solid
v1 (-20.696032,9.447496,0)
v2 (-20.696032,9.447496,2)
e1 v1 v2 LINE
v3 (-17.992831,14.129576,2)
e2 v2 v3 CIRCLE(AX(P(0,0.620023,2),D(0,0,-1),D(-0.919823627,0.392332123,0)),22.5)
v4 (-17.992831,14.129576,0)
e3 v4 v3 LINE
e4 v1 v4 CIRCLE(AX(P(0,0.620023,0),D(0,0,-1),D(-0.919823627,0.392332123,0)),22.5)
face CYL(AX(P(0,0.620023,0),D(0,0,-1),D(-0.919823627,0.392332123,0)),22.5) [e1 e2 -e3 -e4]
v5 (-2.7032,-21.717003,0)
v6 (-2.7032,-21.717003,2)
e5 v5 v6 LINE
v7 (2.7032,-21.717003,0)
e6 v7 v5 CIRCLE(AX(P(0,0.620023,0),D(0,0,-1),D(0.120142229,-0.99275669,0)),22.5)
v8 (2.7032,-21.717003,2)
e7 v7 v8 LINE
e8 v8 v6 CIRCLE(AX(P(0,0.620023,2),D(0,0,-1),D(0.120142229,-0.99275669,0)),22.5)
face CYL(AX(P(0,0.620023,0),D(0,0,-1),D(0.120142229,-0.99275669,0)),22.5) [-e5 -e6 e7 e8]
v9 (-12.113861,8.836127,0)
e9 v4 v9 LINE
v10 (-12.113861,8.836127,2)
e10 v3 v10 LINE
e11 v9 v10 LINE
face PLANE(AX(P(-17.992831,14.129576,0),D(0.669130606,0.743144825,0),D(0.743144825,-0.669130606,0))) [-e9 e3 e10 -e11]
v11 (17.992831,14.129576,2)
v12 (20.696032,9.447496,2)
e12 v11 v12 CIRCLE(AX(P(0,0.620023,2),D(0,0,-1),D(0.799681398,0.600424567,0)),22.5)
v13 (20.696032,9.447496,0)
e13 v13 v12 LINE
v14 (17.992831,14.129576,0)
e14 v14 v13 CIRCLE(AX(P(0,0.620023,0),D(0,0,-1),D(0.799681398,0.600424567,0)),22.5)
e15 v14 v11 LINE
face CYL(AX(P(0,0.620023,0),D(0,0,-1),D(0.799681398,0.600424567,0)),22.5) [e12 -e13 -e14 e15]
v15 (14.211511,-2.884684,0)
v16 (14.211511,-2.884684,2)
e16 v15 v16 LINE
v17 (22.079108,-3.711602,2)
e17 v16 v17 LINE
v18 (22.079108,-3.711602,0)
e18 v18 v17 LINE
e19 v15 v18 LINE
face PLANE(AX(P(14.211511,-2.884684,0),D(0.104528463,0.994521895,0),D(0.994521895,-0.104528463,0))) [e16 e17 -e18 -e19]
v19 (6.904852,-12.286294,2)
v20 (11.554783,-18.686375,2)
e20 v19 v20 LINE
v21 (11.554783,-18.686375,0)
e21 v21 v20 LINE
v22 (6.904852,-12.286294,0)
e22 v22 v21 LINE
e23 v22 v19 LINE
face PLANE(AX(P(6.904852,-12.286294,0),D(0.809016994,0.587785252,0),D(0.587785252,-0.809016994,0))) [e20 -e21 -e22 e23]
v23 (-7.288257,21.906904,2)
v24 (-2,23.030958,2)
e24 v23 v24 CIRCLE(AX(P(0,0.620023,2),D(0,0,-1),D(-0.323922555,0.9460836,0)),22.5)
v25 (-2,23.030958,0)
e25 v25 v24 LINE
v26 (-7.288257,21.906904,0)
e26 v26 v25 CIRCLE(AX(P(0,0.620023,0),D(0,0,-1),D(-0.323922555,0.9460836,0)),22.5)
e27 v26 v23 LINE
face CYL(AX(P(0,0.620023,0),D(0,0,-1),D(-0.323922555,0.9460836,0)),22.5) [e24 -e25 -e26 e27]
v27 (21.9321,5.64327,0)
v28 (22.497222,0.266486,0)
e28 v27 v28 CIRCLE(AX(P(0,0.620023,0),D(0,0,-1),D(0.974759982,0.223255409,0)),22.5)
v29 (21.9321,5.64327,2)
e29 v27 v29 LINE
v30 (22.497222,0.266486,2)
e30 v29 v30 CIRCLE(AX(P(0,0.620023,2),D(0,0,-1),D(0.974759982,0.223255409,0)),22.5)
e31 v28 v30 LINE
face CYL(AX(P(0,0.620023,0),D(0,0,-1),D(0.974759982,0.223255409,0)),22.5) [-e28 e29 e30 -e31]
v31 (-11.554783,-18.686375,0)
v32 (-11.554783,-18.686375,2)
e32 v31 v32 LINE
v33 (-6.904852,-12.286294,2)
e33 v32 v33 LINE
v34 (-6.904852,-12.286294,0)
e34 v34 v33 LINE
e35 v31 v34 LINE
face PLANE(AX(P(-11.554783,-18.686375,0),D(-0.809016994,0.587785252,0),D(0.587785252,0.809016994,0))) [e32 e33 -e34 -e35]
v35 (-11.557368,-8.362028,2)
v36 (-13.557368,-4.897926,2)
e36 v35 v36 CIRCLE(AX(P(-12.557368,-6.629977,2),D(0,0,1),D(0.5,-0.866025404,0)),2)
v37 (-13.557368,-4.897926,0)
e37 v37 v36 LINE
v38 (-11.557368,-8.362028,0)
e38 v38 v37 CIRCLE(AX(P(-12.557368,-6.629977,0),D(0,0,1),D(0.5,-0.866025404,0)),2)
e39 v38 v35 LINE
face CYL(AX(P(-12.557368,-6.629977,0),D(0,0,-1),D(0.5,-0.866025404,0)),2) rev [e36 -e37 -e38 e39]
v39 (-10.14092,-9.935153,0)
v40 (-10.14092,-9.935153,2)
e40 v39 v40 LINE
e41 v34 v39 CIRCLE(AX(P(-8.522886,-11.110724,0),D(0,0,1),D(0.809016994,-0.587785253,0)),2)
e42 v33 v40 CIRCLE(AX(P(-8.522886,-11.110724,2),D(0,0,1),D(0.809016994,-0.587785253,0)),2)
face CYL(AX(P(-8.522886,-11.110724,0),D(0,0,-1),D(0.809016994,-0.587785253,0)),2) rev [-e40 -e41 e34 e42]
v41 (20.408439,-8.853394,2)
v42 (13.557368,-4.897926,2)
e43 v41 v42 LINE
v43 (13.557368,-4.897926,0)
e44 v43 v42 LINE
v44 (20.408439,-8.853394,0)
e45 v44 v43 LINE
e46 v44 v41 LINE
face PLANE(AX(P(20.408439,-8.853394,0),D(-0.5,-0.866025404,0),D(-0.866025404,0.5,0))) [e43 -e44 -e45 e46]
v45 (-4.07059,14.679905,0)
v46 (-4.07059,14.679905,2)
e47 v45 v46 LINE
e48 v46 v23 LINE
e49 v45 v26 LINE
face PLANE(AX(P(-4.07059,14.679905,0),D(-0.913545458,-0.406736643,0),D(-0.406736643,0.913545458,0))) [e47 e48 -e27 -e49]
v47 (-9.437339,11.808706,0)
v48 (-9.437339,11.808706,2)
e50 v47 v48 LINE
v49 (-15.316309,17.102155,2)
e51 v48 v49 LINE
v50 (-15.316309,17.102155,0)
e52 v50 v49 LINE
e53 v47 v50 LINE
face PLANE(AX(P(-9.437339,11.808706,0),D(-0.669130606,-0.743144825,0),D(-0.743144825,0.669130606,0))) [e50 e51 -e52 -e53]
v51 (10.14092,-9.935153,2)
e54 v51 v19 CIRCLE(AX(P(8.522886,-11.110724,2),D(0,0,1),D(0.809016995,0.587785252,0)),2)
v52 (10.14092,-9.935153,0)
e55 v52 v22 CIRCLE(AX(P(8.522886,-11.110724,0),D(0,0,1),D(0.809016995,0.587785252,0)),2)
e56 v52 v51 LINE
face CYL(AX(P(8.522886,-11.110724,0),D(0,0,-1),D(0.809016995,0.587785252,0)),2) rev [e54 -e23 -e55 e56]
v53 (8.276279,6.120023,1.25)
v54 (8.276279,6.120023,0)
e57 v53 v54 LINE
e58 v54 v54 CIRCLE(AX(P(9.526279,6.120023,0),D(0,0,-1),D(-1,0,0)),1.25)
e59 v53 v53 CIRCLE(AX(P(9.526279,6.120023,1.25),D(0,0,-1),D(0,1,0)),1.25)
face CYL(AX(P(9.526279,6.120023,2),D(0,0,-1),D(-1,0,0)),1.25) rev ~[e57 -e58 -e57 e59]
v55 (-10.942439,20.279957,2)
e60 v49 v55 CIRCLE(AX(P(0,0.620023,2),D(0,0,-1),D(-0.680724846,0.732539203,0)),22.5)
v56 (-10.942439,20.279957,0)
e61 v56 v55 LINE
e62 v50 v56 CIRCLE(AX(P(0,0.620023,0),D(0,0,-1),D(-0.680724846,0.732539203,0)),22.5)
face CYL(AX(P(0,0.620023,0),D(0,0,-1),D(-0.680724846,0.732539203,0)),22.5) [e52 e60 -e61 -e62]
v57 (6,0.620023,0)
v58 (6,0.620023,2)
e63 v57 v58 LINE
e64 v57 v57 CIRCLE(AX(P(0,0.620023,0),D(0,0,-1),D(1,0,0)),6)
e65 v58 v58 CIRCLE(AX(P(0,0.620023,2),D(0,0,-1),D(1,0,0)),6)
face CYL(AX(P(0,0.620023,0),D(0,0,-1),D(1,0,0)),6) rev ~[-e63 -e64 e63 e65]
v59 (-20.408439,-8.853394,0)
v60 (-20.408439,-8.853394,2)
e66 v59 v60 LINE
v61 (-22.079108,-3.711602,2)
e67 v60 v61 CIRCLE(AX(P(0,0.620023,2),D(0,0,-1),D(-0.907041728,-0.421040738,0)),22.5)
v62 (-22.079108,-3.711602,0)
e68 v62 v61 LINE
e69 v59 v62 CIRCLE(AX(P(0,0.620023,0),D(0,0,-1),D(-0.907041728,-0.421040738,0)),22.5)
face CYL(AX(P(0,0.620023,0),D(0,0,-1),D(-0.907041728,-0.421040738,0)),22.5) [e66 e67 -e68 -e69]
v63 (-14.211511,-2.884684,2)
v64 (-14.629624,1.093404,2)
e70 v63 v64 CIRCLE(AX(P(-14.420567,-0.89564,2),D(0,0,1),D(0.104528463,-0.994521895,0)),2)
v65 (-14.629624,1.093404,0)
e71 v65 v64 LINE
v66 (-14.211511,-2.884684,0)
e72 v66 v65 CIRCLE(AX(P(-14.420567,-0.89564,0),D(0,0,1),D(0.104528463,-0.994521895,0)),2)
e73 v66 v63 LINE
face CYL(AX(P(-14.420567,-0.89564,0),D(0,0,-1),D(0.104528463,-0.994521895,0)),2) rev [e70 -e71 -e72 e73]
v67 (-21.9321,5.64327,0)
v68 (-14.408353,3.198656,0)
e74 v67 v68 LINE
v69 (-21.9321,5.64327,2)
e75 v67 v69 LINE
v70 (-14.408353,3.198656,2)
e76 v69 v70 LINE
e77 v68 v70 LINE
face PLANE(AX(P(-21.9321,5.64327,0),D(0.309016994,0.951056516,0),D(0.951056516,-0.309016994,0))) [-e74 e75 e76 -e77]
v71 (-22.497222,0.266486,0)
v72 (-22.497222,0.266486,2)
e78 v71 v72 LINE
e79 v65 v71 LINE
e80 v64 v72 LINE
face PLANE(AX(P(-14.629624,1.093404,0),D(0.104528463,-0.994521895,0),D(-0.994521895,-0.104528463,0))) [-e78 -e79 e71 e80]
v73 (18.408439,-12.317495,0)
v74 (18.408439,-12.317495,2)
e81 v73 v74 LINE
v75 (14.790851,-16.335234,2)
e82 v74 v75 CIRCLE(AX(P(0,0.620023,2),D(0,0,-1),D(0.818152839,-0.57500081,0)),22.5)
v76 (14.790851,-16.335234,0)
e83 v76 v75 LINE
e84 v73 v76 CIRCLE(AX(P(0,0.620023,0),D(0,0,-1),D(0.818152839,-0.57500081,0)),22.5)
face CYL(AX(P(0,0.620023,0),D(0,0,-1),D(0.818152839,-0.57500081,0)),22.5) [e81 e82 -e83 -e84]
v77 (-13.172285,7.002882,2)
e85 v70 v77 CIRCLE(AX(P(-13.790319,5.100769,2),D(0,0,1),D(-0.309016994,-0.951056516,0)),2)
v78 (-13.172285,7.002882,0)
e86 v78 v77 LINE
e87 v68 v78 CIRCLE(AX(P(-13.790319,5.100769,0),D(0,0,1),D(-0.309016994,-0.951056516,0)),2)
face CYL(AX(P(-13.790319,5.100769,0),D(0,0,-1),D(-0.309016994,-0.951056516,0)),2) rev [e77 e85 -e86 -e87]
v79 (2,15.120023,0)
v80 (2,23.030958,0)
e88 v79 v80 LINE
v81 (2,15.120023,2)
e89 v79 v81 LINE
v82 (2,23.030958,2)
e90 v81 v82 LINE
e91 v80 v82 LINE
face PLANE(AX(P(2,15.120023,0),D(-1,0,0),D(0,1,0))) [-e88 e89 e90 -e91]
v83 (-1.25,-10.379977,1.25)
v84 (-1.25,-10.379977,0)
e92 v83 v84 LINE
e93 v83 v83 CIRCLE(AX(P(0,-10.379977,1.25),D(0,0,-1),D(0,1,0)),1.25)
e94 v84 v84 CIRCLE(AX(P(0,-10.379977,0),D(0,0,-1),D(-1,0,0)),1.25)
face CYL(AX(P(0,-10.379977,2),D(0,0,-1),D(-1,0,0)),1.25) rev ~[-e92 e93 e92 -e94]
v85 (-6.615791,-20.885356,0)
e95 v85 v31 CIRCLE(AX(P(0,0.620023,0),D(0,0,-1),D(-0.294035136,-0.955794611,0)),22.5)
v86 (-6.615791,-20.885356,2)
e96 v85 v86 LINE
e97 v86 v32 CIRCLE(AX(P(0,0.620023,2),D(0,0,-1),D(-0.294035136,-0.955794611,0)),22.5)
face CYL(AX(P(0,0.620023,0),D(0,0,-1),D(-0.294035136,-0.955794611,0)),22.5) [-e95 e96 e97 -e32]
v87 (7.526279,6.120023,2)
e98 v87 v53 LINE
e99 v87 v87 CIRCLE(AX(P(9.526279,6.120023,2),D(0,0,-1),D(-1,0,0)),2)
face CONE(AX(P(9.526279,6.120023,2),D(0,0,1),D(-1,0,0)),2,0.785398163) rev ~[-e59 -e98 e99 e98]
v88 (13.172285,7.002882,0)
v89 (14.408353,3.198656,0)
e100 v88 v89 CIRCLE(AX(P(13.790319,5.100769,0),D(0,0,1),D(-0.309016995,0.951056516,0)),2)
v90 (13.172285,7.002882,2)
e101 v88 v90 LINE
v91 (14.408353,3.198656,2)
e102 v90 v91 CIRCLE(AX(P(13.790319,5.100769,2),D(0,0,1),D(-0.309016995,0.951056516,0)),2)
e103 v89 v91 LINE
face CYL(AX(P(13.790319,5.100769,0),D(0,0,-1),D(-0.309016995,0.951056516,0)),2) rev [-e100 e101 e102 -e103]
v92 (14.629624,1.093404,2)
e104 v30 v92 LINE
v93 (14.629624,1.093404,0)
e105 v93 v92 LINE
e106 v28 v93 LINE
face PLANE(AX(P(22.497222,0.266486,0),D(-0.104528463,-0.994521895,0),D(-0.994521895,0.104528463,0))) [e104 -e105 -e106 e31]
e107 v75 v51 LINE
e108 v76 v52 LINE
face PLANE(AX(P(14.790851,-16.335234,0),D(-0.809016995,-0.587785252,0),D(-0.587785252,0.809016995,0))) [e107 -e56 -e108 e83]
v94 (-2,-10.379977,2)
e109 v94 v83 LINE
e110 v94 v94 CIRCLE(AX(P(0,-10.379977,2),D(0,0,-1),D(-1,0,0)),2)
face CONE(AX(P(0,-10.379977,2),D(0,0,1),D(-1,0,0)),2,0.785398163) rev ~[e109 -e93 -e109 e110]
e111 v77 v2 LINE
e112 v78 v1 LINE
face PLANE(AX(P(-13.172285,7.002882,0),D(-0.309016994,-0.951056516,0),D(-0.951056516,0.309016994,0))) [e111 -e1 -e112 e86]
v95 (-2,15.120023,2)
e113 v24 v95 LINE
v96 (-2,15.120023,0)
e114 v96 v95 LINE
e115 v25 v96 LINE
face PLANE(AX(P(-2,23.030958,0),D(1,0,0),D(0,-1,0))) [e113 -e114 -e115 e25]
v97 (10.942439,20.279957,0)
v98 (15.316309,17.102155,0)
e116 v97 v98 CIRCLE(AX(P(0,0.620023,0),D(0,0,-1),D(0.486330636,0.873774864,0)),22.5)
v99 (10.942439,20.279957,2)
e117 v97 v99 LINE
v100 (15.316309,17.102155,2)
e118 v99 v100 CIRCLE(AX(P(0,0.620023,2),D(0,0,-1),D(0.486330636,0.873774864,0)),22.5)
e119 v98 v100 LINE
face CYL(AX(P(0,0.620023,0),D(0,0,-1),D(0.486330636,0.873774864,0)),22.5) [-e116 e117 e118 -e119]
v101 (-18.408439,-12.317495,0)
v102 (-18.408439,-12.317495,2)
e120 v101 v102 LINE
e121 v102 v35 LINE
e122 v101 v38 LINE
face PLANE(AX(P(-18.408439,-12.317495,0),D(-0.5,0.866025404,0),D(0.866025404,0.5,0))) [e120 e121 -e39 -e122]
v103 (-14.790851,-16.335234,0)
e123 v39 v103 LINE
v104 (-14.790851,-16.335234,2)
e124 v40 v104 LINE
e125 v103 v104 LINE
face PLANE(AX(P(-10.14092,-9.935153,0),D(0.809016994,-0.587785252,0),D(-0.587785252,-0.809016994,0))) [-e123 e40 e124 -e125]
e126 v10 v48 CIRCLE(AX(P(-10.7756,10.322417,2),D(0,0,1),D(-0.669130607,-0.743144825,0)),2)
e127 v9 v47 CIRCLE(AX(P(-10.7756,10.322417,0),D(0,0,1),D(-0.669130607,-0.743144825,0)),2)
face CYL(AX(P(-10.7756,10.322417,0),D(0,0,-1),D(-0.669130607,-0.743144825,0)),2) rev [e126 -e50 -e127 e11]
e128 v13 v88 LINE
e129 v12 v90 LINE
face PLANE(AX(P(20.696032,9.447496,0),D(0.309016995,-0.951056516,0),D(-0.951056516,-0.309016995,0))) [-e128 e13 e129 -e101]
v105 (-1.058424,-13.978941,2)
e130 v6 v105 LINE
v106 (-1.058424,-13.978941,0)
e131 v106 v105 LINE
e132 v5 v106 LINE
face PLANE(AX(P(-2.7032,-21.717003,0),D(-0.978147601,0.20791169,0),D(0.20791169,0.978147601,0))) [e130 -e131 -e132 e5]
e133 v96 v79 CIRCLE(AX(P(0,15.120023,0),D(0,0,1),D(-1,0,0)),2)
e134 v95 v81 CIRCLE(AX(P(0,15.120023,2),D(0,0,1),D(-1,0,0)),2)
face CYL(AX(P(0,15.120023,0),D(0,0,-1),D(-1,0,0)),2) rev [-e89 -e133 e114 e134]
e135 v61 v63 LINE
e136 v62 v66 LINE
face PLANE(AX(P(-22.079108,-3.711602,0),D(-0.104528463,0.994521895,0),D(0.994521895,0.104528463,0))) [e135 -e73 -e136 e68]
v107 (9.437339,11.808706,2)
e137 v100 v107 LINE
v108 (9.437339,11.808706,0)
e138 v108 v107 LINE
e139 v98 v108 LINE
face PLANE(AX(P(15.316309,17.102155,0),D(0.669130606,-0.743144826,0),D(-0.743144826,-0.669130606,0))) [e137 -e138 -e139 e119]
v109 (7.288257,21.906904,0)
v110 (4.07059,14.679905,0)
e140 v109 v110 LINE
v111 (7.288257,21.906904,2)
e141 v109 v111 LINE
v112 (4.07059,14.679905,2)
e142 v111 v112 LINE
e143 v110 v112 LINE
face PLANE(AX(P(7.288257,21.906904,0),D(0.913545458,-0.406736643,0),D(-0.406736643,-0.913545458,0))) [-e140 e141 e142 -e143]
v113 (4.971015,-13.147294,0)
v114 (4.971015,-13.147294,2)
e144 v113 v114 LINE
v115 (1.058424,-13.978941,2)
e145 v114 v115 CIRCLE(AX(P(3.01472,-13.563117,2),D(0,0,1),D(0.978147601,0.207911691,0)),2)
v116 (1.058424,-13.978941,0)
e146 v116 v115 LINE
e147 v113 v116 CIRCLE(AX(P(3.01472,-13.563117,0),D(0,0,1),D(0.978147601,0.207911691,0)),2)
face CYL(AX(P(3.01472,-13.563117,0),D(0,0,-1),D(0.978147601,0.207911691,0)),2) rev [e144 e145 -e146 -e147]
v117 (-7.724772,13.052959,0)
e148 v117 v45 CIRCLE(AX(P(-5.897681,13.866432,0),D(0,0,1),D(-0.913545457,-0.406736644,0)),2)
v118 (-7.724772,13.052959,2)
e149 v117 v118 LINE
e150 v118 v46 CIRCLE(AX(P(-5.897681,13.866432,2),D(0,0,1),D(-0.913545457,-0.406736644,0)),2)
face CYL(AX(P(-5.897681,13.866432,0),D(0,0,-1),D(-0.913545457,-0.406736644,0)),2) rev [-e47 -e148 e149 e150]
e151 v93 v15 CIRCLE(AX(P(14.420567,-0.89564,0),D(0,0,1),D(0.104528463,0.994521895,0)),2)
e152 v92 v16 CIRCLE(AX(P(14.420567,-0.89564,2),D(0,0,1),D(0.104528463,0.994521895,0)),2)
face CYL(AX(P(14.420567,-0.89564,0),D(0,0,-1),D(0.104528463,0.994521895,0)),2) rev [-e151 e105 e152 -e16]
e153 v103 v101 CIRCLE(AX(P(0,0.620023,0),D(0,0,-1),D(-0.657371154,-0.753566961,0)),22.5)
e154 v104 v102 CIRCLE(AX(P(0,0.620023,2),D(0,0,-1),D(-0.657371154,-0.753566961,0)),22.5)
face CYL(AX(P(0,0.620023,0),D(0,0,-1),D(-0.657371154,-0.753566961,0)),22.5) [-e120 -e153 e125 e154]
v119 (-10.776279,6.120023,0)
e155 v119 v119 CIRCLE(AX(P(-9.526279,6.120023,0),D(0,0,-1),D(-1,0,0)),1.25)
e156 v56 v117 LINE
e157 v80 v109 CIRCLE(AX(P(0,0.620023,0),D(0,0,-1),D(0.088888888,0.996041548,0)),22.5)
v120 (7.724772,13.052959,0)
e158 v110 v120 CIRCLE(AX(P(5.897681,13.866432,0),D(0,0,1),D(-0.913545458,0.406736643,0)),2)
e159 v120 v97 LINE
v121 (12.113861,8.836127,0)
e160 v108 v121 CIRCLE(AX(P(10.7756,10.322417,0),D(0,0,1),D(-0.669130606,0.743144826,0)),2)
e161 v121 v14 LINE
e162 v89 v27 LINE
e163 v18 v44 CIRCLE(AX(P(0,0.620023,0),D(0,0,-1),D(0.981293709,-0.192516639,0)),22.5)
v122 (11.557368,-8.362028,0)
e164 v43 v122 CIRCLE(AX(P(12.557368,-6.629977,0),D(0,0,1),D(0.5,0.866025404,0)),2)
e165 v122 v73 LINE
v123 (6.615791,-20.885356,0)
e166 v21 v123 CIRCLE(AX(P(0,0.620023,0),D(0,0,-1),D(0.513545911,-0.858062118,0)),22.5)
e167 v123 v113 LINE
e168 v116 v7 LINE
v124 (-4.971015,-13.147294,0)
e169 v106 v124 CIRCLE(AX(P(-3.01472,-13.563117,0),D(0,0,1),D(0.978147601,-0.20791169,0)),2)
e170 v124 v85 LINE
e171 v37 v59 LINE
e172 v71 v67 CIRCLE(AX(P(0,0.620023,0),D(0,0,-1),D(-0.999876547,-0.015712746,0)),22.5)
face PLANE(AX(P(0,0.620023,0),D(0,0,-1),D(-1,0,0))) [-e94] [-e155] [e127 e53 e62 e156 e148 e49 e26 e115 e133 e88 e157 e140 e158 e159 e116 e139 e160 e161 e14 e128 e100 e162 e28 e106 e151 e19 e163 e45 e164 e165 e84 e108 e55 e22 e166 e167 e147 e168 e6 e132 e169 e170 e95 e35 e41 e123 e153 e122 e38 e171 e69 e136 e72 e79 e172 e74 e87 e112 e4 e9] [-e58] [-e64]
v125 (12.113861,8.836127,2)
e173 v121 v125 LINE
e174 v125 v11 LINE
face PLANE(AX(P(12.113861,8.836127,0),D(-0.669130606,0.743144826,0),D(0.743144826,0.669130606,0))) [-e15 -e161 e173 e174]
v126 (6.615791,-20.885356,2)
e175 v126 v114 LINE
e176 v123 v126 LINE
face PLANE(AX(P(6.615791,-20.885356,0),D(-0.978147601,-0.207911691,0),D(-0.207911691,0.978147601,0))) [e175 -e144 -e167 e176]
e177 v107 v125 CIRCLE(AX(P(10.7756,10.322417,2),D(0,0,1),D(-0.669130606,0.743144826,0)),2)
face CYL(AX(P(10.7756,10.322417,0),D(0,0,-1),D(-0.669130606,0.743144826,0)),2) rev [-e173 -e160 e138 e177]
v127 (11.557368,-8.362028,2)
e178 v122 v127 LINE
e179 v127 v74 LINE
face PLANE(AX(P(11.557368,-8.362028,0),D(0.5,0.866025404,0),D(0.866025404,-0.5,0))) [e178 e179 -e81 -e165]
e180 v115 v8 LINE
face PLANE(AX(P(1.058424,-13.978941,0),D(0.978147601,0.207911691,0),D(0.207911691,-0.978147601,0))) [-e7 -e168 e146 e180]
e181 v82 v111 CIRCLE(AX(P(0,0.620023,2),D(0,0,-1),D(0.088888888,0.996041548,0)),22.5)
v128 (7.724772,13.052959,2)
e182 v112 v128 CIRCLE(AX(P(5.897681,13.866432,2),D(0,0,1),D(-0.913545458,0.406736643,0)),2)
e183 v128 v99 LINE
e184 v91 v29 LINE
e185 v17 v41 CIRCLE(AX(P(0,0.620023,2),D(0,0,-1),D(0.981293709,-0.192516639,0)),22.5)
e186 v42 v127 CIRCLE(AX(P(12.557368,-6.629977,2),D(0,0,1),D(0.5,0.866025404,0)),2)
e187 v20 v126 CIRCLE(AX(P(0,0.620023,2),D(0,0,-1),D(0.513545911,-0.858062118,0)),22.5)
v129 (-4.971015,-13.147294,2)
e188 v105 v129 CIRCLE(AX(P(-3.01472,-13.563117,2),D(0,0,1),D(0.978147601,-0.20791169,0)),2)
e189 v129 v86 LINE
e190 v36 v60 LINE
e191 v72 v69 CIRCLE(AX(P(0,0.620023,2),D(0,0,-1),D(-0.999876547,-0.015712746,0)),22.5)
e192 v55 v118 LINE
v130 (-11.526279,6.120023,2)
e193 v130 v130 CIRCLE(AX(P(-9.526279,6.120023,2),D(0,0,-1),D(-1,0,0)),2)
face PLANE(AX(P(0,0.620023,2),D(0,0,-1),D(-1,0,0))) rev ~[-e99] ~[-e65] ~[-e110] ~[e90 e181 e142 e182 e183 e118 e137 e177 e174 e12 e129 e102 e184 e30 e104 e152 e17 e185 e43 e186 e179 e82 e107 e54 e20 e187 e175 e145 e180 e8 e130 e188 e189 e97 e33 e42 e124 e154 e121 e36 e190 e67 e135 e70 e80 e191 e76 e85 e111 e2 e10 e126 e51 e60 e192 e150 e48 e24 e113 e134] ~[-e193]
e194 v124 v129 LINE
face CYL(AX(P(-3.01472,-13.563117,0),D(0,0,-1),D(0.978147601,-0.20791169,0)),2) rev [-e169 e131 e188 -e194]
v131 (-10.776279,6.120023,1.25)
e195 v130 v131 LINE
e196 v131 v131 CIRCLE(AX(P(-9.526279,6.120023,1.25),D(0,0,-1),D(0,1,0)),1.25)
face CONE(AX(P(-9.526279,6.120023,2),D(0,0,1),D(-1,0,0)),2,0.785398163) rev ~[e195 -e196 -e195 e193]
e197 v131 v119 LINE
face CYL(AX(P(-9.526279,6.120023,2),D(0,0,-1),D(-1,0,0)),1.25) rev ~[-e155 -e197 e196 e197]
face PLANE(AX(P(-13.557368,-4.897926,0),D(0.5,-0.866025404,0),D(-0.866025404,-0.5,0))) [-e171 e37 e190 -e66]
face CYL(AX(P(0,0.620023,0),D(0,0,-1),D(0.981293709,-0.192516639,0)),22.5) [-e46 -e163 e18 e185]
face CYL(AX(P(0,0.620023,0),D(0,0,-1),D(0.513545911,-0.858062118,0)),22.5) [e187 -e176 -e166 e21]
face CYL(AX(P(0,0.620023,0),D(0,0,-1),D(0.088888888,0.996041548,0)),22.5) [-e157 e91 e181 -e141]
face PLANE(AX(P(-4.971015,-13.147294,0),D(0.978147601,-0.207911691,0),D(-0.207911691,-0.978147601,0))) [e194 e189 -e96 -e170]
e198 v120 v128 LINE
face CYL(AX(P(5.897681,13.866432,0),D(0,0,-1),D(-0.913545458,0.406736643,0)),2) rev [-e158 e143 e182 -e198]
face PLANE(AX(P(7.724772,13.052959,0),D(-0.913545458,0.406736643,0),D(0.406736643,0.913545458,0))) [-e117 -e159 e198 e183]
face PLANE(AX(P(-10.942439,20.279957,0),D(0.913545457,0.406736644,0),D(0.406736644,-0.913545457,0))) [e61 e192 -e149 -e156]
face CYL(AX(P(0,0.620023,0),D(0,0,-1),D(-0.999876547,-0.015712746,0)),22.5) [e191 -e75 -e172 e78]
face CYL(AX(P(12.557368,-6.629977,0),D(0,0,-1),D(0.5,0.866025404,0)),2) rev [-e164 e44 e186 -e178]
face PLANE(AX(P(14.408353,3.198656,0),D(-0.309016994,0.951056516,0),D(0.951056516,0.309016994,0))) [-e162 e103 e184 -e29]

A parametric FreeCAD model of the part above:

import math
import FreeCAD as App
import Part
import Sketcher
Q = App.Units.Quantity

doc = App.newDocument("Part")
body = doc.addObject("PartDesign::Body", "Body")

# Sketch on XY plane
sketch1 = doc.addObject("Sketcher::SketchObject", "Sketch")
body.addObject(sketch1)
sketch1.AttachmentSupport = (doc.XY_Plane, [""])
sketch1.MapMode = "FlatFace"
sketch1.addGeometry(Part.LineSegment(App.Vector(15.3, 17.1, 0), App.Vector(9.4, 11.8, 0)), False)
sketch1.addGeometry(Part.ArcOfCircle(Part.Circle(App.Vector(10.8, 10.3, 0), App.Vector(0, 0, 1), 2), math.radians(132), math.radians(312)), False)
sketch1.addGeometry(Part.LineSegment(App.Vector(12.1, 8.8, 0), App.Vector(18, 14.1, 0)), False)
sketch1.addGeometry(Part.ArcOfCircle(Part.Circle(App.Vector(0, 0.6, 0), App.Vector(0, 0, 1), 22.5), math.radians(23.1), math.radians(36.9)), False)
sketch1.addGeometry(Part.LineSegment(App.Vector(20.7, 9.4, 0), App.Vector(13.2, 7, 0)), False)
sketch1.addGeometry(Part.ArcOfCircle(Part.Circle(App.Vector(13.8, 5.1, 0), App.Vector(0, 0, 1), 2), math.radians(108), math.radians(288)), False)
sketch1.addGeometry(Part.LineSegment(App.Vector(14.4, 3.2, 0), App.Vector(21.9, 5.6, 0)), False)
sketch1.addGeometry(Part.ArcOfCircle(Part.Circle(App.Vector(0, 0.6, 0), App.Vector(0, 0, 1), 22.5), math.radians(-0.9), math.radians(12.9)), False)
sketch1.addGeometry(Part.LineSegment(App.Vector(22.5, 0.3, 0), App.Vector(14.6, 1.1, 0)), False)
sketch1.addGeometry(Part.ArcOfCircle(Part.Circle(App.Vector(14.4, -0.9, 0), App.Vector(0, 0, 1), 2), math.radians(84), math.radians(264)), False)
sketch1.addGeometry(Part.LineSegment(App.Vector(14.2, -2.9, 0), App.Vector(22.1, -3.7, 0)), False)
sketch1.addGeometry(Part.ArcOfCircle(Part.Circle(App.Vector(0, 0.6, 0), App.Vector(0, 0, 1), 22.5), math.radians(-24.9), math.radians(-11.1)), False)
sketch1.addGeometry(Part.LineSegment(App.Vector(20.4, -8.9, 0), App.Vector(13.6, -4.9, 0)), False)
sketch1.addGeometry(Part.ArcOfCircle(Part.Circle(App.Vector(12.6, -6.6, 0), App.Vector(0, 0, 1), 2), math.radians(60), math.radians(240)), False)
sketch1.addGeometry(Part.LineSegment(App.Vector(11.6, -8.4, 0), App.Vector(18.4, -12.3, 0)), False)
sketch1.addGeometry(Part.ArcOfCircle(Part.Circle(App.Vector(0, 0.6, 0), App.Vector(0, 0, 1), 22.5), math.radians(-48.9), math.radians(-35.1)), False)
sketch1.addGeometry(Part.LineSegment(App.Vector(14.8, -16.3, 0), App.Vector(10.1, -9.9, 0)), False)
sketch1.addGeometry(Part.ArcOfCircle(Part.Circle(App.Vector(8.5, -11.1, 0), App.Vector(0, 0, 1), 2), math.radians(36), math.radians(216)), False)
sketch1.addGeometry(Part.LineSegment(App.Vector(6.9, -12.3, 0), App.Vector(11.6, -18.7, 0)), False)
sketch1.addGeometry(Part.ArcOfCircle(Part.Circle(App.Vector(0, 0.6, 0), App.Vector(0, 0, 1), 22.5), math.radians(-72.9), math.radians(-59.1)), False)
sketch1.addGeometry(Part.LineSegment(App.Vector(6.6, -20.9, 0), App.Vector(5, -13.1, 0)), False)
sketch1.addGeometry(Part.ArcOfCircle(Part.Circle(App.Vector(3, -13.6, 0), App.Vector(0, 0, 1), 2), math.radians(12), math.radians(192)), False)
sketch1.addGeometry(Part.LineSegment(App.Vector(1.1, -14, 0), App.Vector(2.7, -21.7, 0)), False)
sketch1.addGeometry(Part.ArcOfCircle(Part.Circle(App.Vector(0, 0.6, 0), App.Vector(0, 0, 1), 22.5), math.radians(-96.9), math.radians(-83.1)), False)
sketch1.addGeometry(Part.LineSegment(App.Vector(-2.7, -21.7, 0), App.Vector(-1.1, -14, 0)), False)
sketch1.addGeometry(Part.ArcOfCircle(Part.Circle(App.Vector(-3, -13.6, 0), App.Vector(0, 0, 1), 2), math.radians(-12), math.radians(168)), False)
sketch1.addGeometry(Part.LineSegment(App.Vector(-5, -13.1, 0), App.Vector(-6.6, -20.9, 0)), False)
sketch1.addGeometry(Part.ArcOfCircle(Part.Circle(App.Vector(0, 0.6, 0), App.Vector(0, 0, 1), 22.5), math.radians(-120.9), math.radians(-107.1)), False)
sketch1.addGeometry(Part.LineSegment(App.Vector(-11.6, -18.7, 0), App.Vector(-6.9, -12.3, 0)), False)
sketch1.addGeometry(Part.ArcOfCircle(Part.Circle(App.Vector(-8.5, -11.1, 0), App.Vector(0, 0, 1), 2), math.radians(-36), math.radians(144)), False)
sketch1.addGeometry(Part.LineSegment(App.Vector(-10.1, -9.9, 0), App.Vector(-14.8, -16.3, 0)), False)
sketch1.addGeometry(Part.ArcOfCircle(Part.Circle(App.Vector(0, 0.6, 0), App.Vector(0, 0, 1), 22.5), math.radians(-144.9), math.radians(-131.1)), False)
sketch1.addGeometry(Part.LineSegment(App.Vector(-18.4, -12.3, 0), App.Vector(-11.6, -8.4, 0)), False)
sketch1.addGeometry(Part.ArcOfCircle(Part.Circle(App.Vector(-12.6, -6.6, 0), App.Vector(0, 0, 1), 2), math.radians(-60), math.radians(120)), False)
sketch1.addGeometry(Part.LineSegment(App.Vector(-13.6, -4.9, 0), App.Vector(-20.4, -8.9, 0)), False)
sketch1.addGeometry(Part.ArcOfCircle(Part.Circle(App.Vector(0, 0.6, 0), App.Vector(0, 0, 1), 22.5), math.radians(-168.9), math.radians(-155.1)), False)
sketch1.addGeometry(Part.LineSegment(App.Vector(-22.1, -3.7, 0), App.Vector(-14.2, -2.9, 0)), False)
sketch1.addGeometry(Part.ArcOfCircle(Part.Circle(App.Vector(-14.4, -0.9, 0), App.Vector(0, 0, 1), 2), math.radians(-84), math.radians(96)), False)
sketch1.addGeometry(Part.LineSegment(App.Vector(-14.6, 1.1, 0), App.Vector(-22.5, 0.3, 0)), False)
sketch1.addGeometry(Part.ArcOfCircle(Part.Circle(App.Vector(0, 0.6, 0), App.Vector(0, 0, 1), 22.5), math.radians(167.1), math.radians(180.9)), False)
sketch1.addGeometry(Part.LineSegment(App.Vector(-21.9, 5.6, 0), App.Vector(-14.4, 3.2, 0)), False)
sketch1.addGeometry(Part.ArcOfCircle(Part.Circle(App.Vector(-13.8, 5.1, 0), App.Vector(0, 0, 1), 2), math.radians(-108), math.radians(72)), False)
sketch1.addGeometry(Part.LineSegment(App.Vector(-13.2, 7, 0), App.Vector(-20.7, 9.4, 0)), False)
sketch1.addGeometry(Part.ArcOfCircle(Part.Circle(App.Vector(0, 0.6, 0), App.Vector(0, 0, 1), 22.5), math.radians(143.1), math.radians(156.9)), False)
sketch1.addGeometry(Part.LineSegment(App.Vector(-18, 14.1, 0), App.Vector(-12.1, 8.8, 0)), False)
sketch1.addGeometry(Part.ArcOfCircle(Part.Circle(App.Vector(-10.8, 10.3, 0), App.Vector(0, 0, 1), 2), math.radians(-132), math.radians(48)), False)
sketch1.addGeometry(Part.LineSegment(App.Vector(-9.4, 11.8, 0), App.Vector(-15.3, 17.1, 0)), False)
sketch1.addGeometry(Part.ArcOfCircle(Part.Circle(App.Vector(0, 0.6, 0), App.Vector(0, 0, 1), 22.5), math.radians(119.1), math.radians(132.9)), False)
sketch1.addGeometry(Part.LineSegment(App.Vector(-10.9, 20.3, 0), App.Vector(-7.7, 13.1, 0)), False)
sketch1.addGeometry(Part.ArcOfCircle(Part.Circle(App.Vector(-5.9, 13.9, 0), App.Vector(0, 0, 1), 2), math.radians(-156), math.radians(24)), False)
sketch1.addGeometry(Part.LineSegment(App.Vector(-4.1, 14.7, 0), App.Vector(-7.3, 21.9, 0)), False)
sketch1.addGeometry(Part.ArcOfCircle(Part.Circle(App.Vector(0, 0.6, 0), App.Vector(0, 0, 1), 22.5), math.radians(95.1), math.radians(108.9)), False)
sketch1.addGeometry(Part.LineSegment(App.Vector(-2, 23, 0), App.Vector(-2, 15.1, 0)), False)
sketch1.addGeometry(Part.ArcOfCircle(Part.Circle(App.Vector(0, 15.1, 0), App.Vector(0, 0, 1), 2), math.radians(180), math.radians(360)), False)
sketch1.addGeometry(Part.LineSegment(App.Vector(2, 15.1, 0), App.Vector(2, 23, 0)), False)
sketch1.addGeometry(Part.ArcOfCircle(Part.Circle(App.Vector(0, 0.6, 0), App.Vector(0, 0, 1), 22.5), math.radians(71.1), math.radians(84.9)), False)
sketch1.addGeometry(Part.LineSegment(App.Vector(7.3, 21.9, 0), App.Vector(4.1, 14.7, 0)), False)
sketch1.addGeometry(Part.ArcOfCircle(Part.Circle(App.Vector(5.9, 13.9, 0), App.Vector(0, 0, 1), 2), math.radians(156), math.radians(336)), False)
sketch1.addGeometry(Part.LineSegment(App.Vector(7.7, 13.1, 0), App.Vector(10.9, 20.3, 0)), False)
sketch1.addGeometry(Part.ArcOfCircle(Part.Circle(App.Vector(0, 0.6, 0), App.Vector(0, 0, 1), 22.5), math.radians(47.1), math.radians(60.9)), False)
sketch1.addGeometry(Part.Circle(App.Vector(0, -10.4, 0), App.Vector(0, 0, 1), 1), False)
sketch1.addGeometry(Part.Circle(App.Vector(9.5, 6.1, 0), App.Vector(0, 0, 1), 1), False)
sketch1.addGeometry(Part.Circle(App.Vector(0, 0.6, 0), App.Vector(0, 0, 1), 6), False)
sketch1.addGeometry(Part.Circle(App.Vector(-9.5, 6.1, 0), App.Vector(0, 0, 1), 1), False)
sketch1.addConstraint(Sketcher.Constraint("Tangent", 0, 2, 1, 1))
sketch1.addConstraint(Sketcher.Constraint("Tangent", 1, 2, 2, 1))
sketch1.addConstraint(Sketcher.Constraint("Coincident", 2, 2, 3, 2))
sketch1.addConstraint(Sketcher.Constraint("Coincident", 3, 1, 4, 1))
sketch1.addConstraint(Sketcher.Constraint("Tangent", 4, 2, 5, 1))
sketch1.addConstraint(Sketcher.Constraint("Tangent", 5, 2, 6, 1))
sketch1.addConstraint(Sketcher.Constraint("Coincident", 6, 2, 7, 2))
sketch1.addConstraint(Sketcher.Constraint("Coincident", 7, 1, 8, 1))
sketch1.addConstraint(Sketcher.Constraint("Tangent", 8, 2, 9, 1))
sketch1.addConstraint(Sketcher.Constraint("Tangent", 9, 2, 10, 1))
sketch1.addConstraint(Sketcher.Constraint("Coincident", 10, 2, 11, 2))
sketch1.addConstraint(Sketcher.Constraint("Coincident", 11, 1, 12, 1))
sketch1.addConstraint(Sketcher.Constraint("Tangent", 12, 2, 13, 1))
sketch1.addConstraint(Sketcher.Constraint("Tangent", 13, 2, 14, 1))
sketch1.addConstraint(Sketcher.Constraint("Coincident", 14, 2, 15, 2))
sketch1.addConstraint(Sketcher.Constraint("Coincident", 15, 1, 16, 1))
sketch1.addConstraint(Sketcher.Constraint("Tangent", 16, 2, 17, 1))
sketch1.addConstraint(Sketcher.Constraint("Tangent", 17, 2, 18, 1))
sketch1.addConstraint(Sketcher.Constraint("Coincident", 18, 2, 19, 2))
sketch1.addConstraint(Sketcher.Constraint("Coincident", 19, 1, 20, 1))
sketch1.addConstraint(Sketcher.Constraint("Tangent", 20, 2, 21, 1))
sketch1.addConstraint(Sketcher.Constraint("Tangent", 21, 2, 22, 1))
sketch1.addConstraint(Sketcher.Constraint("Coincident", 22, 2, 23, 2))
sketch1.addConstraint(Sketcher.Constraint("Coincident", 23, 1, 24, 1))
sketch1.addConstraint(Sketcher.Constraint("Tangent", 24, 2, 25, 1))
sketch1.addConstraint(Sketcher.Constraint("Tangent", 25, 2, 26, 1))
sketch1.addConstraint(Sketcher.Constraint("Coincident", 26, 2, 27, 2))
sketch1.addConstraint(Sketcher.Constraint("Coincident", 27, 1, 28, 1))
sketch1.addConstraint(Sketcher.Constraint("Tangent", 28, 2, 29, 1))
sketch1.addConstraint(Sketcher.Constraint("Tangent", 29, 2, 30, 1))
sketch1.addConstraint(Sketcher.Constraint("Coincident", 30, 2, 31, 2))
sketch1.addConstraint(Sketcher.Constraint("Coincident", 31, 1, 32, 1))
sketch1.addConstraint(Sketcher.Constraint("Tangent", 32, 2, 33, 1))
sketch1.addConstraint(Sketcher.Constraint("Tangent", 33, 2, 34, 1))
sketch1.addConstraint(Sketcher.Constraint("Coincident", 34, 2, 35, 2))
sketch1.addConstraint(Sketcher.Constraint("Coincident", 35, 1, 36, 1))
sketch1.addConstraint(Sketcher.Constraint("Tangent", 36, 2, 37, 1))
sketch1.addConstraint(Sketcher.Constraint("Tangent", 37, 2, 38, 1))
sketch1.addConstraint(Sketcher.Constraint("Coincident", 38, 2, 39, 2))
sketch1.addConstraint(Sketcher.Constraint("Coincident", 39, 1, 40, 1))
sketch1.addConstraint(Sketcher.Constraint("Tangent", 40, 2, 41, 1))
sketch1.addConstraint(Sketcher.Constraint("Tangent", 41, 2, 42, 1))
sketch1.addConstraint(Sketcher.Constraint("Coincident", 42, 2, 43, 2))
sketch1.addConstraint(Sketcher.Constraint("Coincident", 43, 1, 44, 1))
sketch1.addConstraint(Sketcher.Constraint("Tangent", 44, 2, 45, 1))
sketch1.addConstraint(Sketcher.Constraint("Tangent", 45, 2, 46, 1))
sketch1.addConstraint(Sketcher.Constraint("Coincident", 46, 2, 47, 2))
sketch1.addConstraint(Sketcher.Constraint("Coincident", 47, 1, 48, 1))
sketch1.addConstraint(Sketcher.Constraint("Tangent", 48, 2, 49, 1))
sketch1.addConstraint(Sketcher.Constraint("Tangent", 49, 2, 50, 1))
sketch1.addConstraint(Sketcher.Constraint("Coincident", 50, 2, 51, 2))
sketch1.addConstraint(Sketcher.Constraint("Coincident", 51, 1, 52, 1))
sketch1.addConstraint(Sketcher.Constraint("Tangent", 52, 2, 53, 1))
sketch1.addConstraint(Sketcher.Constraint("Tangent", 53, 2, 54, 1))
sketch1.addConstraint(Sketcher.Constraint("Coincident", 54, 2, 55, 2))
sketch1.addConstraint(Sketcher.Constraint("Coincident", 55, 1, 56, 1))
sketch1.addConstraint(Sketcher.Constraint("Tangent", 56, 2, 57, 1))
sketch1.addConstraint(Sketcher.Constraint("Tangent", 57, 2, 58, 1))
sketch1.addConstraint(Sketcher.Constraint("Coincident", 58, 2, 59, 2))
sketch1.addConstraint(Sketcher.Constraint("Coincident", 59, 1, 0, 1))
sketch1.addConstraint(Sketcher.Constraint("Vertical", 52))
sketch1.addConstraint(Sketcher.Constraint("Vertical", 54))
sketch1.addConstraint(Sketcher.Constraint("Coincident", 7, 3, 3, 3))
sketch1.addConstraint(Sketcher.Constraint("Coincident", 11, 3, 3, 3))
sketch1.addConstraint(Sketcher.Constraint("Coincident", 15, 3, 3, 3))
sketch1.addConstraint(Sketcher.Constraint("Coincident", 19, 3, 3, 3))
sketch1.addConstraint(Sketcher.Constraint("Coincident", 23, 3, 3, 3))
sketch1.addConstraint(Sketcher.Constraint("Coincident", 27, 3, 3, 3))
sketch1.addConstraint(Sketcher.Constraint("Coincident", 31, 3, 3, 3))
sketch1.addConstraint(Sketcher.Constraint("Coincident", 35, 3, 3, 3))
sketch1.addConstraint(Sketcher.Constraint("Coincident", 39, 3, 3, 3))
sketch1.addConstraint(Sketcher.Constraint("Coincident", 43, 3, 3, 3))
sketch1.addConstraint(Sketcher.Constraint("Coincident", 47, 3, 3, 3))
sketch1.addConstraint(Sketcher.Constraint("Coincident", 51, 3, 3, 3))
sketch1.addConstraint(Sketcher.Constraint("Coincident", 55, 3, 3, 3))
sketch1.addConstraint(Sketcher.Constraint("Coincident", 59, 3, 3, 3))
sketch1.addConstraint(Sketcher.Constraint("Coincident", 62, 3, 3, 3))
sketch1.addConstraint(Sketcher.Constraint("Equal", 1, 5))
sketch1.addConstraint(Sketcher.Constraint("Equal", 3, 7))
sketch1.addConstraint(Sketcher.Constraint("Equal", 5, 9))
sketch1.addConstraint(Sketcher.Constraint("Equal", 7, 11))
sketch1.addConstraint(Sketcher.Constraint("Equal", 9, 13))
sketch1.addConstraint(Sketcher.Constraint("Equal", 11, 15))
sketch1.addConstraint(Sketcher.Constraint("Equal", 13, 17))
sketch1.addConstraint(Sketcher.Constraint("Equal", 15, 19))
sketch1.addConstraint(Sketcher.Constraint("Equal", 17, 21))
sketch1.addConstraint(Sketcher.Constraint("Equal", 19, 23))
sketch1.addConstraint(Sketcher.Constraint("Equal", 21, 25))
sketch1.addConstraint(Sketcher.Constraint("Equal", 23, 27))
sketch1.addConstraint(Sketcher.Constraint("Equal", 25, 29))
sketch1.addConstraint(Sketcher.Constraint("Equal", 27, 31))
sketch1.addConstraint(Sketcher.Constraint("Equal", 29, 33))
sketch1.addConstraint(Sketcher.Constraint("Equal", 31, 35))
sketch1.addConstraint(Sketcher.Constraint("Equal", 33, 37))
sketch1.addConstraint(Sketcher.Constraint("Equal", 35, 39))
sketch1.addConstraint(Sketcher.Constraint("Equal", 37, 41))
sketch1.addConstraint(Sketcher.Constraint("Equal", 39, 43))
sketch1.addConstraint(Sketcher.Constraint("Equal", 41, 45))
sketch1.addConstraint(Sketcher.Constraint("Equal", 43, 47))
sketch1.addConstraint(Sketcher.Constraint("Equal", 45, 49))
sketch1.addConstraint(Sketcher.Constraint("Equal", 47, 51))
sketch1.addConstraint(Sketcher.Constraint("Equal", 49, 53))
sketch1.addConstraint(Sketcher.Constraint("Equal", 51, 55))
sketch1.addConstraint(Sketcher.Constraint("Equal", 53, 57))
sketch1.addConstraint(Sketcher.Constraint("Equal", 55, 59))
sketch1.addConstraint(Sketcher.Constraint("Equal", 60, 61))
sketch1.addConstraint(Sketcher.Constraint("Equal", 61, 63))
sketch1.addConstraint(Sketcher.Constraint("Symmetric", 21, 3, 25, 3, -2))
sketch1.addConstraint(Sketcher.Constraint("Symmetric", 17, 3, 29, 3, -2))
sketch1.addConstraint(Sketcher.Constraint("Symmetric", 13, 3, 33, 3, -2))
sketch1.addConstraint(Sketcher.Constraint("Symmetric", 9, 3, 37, 3, -2))
sketch1.addConstraint(Sketcher.Constraint("Symmetric", 5, 3, 41, 3, -2))
sketch1.addConstraint(Sketcher.Constraint("Symmetric", 1, 3, 45, 3, -2))
sketch1.addConstraint(Sketcher.Constraint("Symmetric", 49, 3, 57, 3, -2))
sketch1.addConstraint(Sketcher.Constraint("Symmetric", 61, 3, 63, 3, -2))
sketch1.addConstraint(Sketcher.Constraint("Symmetric", 22, 2, 23, 1, -2))
sketch1.addConstraint(Sketcher.Constraint("PointOnObject", 53, 3, -2))
sketch1.addConstraint(Sketcher.Constraint("PointOnObject", 60, 3, -2))
sketch1.addConstraint(Sketcher.Constraint("Parallel", 0, 2))
sketch1.addConstraint(Sketcher.Constraint("Parallel", 4, 6))
sketch1.addConstraint(Sketcher.Constraint("Parallel", 8, 10))
sketch1.addConstraint(Sketcher.Constraint("Parallel", 12, 14))
sketch1.addConstraint(Sketcher.Constraint("Parallel", 16, 18))
sketch1.addConstraint(Sketcher.Constraint("Parallel", 20, 22))
sketch1.addConstraint(Sketcher.Constraint("Parallel", 24, 26))
sketch1.addConstraint(Sketcher.Constraint("Parallel", 28, 30))
sketch1.addConstraint(Sketcher.Constraint("Parallel", 32, 34))
sketch1.addConstraint(Sketcher.Constraint("Parallel", 36, 38))
sketch1.addConstraint(Sketcher.Constraint("Parallel", 40, 42))
sketch1.addConstraint(Sketcher.Constraint("Parallel", 44, 46))
sketch1.addConstraint(Sketcher.Constraint("Parallel", 48, 50))
sketch1.addConstraint(Sketcher.Constraint("Parallel", 56, 58))
sketch1.addConstraint(Sketcher.Constraint("Horizontal", 18, 2, 27, 1))
sketch1.addConstraint(Sketcher.Constraint("Horizontal", 14, 2, 31, 1))
sketch1.addConstraint(Sketcher.Constraint("Horizontal", 10, 2, 35, 1))
sketch1.addConstraint(Sketcher.Constraint("Horizontal", 6, 2, 39, 1))
sketch1.addConstraint(Sketcher.Constraint("Horizontal", 2, 2, 43, 1))
sketch1.addConstraint(Sketcher.Constraint("Horizontal", 50, 2, 55, 1))
sketch1.addConstraint(Sketcher.Constraint("Equal", 0, 2))
sketch1.addConstraint(Sketcher.Constraint("Equal", 2, 4))
sketch1.addConstraint(Sketcher.Constraint("Equal", 4, 6))
sketch1.addConstraint(Sketcher.Constraint("Equal", 6, 8))
sketch1.addConstraint(Sketcher.Constraint("Equal", 8, 10))
sketch1.addConstraint(Sketcher.Constraint("Equal", 10, 12))
sketch1.addConstraint(Sketcher.Constraint("Equal", 12, 14))
sketch1.addConstraint(Sketcher.Constraint("Equal", 14, 16))
sketch1.addConstraint(Sketcher.Constraint("Equal", 16, 18))
sketch1.addConstraint(Sketcher.Constraint("Equal", 18, 20))
sketch1.addConstraint(Sketcher.Constraint("Equal", 20, 22))
sketch1.addConstraint(Sketcher.Constraint("Equal", 46, 48))
sketch1.addConstraint(Sketcher.Constraint("Equal", 48, 50))
sketch1.addConstraint(Sketcher.Constraint("Diameter", 60, Q("2 mm")))
sketch1.addConstraint(Sketcher.Constraint("Diameter", 62, Q("12 mm")))
sketch1.addConstraint(Sketcher.Constraint("Radius", 1, Q("2 mm")))
sketch1.addConstraint(Sketcher.Constraint("Radius", 3, Q("22.5 mm")))
sketch1.addConstraint(Sketcher.Constraint("Angle", 0, Q("-138 deg")))
sketch1.addConstraint(Sketcher.Constraint("Angle", 4, Q("-162 deg")))
sketch1.addConstraint(Sketcher.Constraint("Angle", 8, Q("174 deg")))
sketch1.addConstraint(Sketcher.Constraint("Angle", 12, Q("150 deg")))
sketch1.addConstraint(Sketcher.Constraint("Angle", 16, Q("126 deg")))
sketch1.addConstraint(Sketcher.Constraint("Angle", 20, Q("102 deg")))
sketch1.addConstraint(Sketcher.Constraint("Angle", 48, Q("-66 deg")))
sketch1.addConstraint(Sketcher.Constraint("DistanceX", -1, 1, 1, 3, Q("10.7756 mm")))
sketch1.addConstraint(Sketcher.Constraint("DistanceY", 10, 2, -1, 1, Q("3.711602 mm")))
sketch1.addConstraint(Sketcher.Constraint("DistanceY", 52, 2, 52, 1, Q("7.910935 mm")))
sketch1.addConstraint(Sketcher.Constraint("DistanceX", -1, 1, 61, 3, Q("9.526279 mm")))
sketch1.addConstraint(Sketcher.Constraint("DistanceY", 60, 3, -1, 1, Q("10.379977 mm")))
sketch1.addConstraint(Sketcher.Constraint("DistanceY", -1, 1, 61, 3, Q("6.120023 mm")))
pad1 = doc.addObject("PartDesign::Pad", "Pad")
body.addObject(pad1)
pad1.Profile = sketch1
pad1.Length = 2

# Sketch on XY plane
sketch2 = doc.addObject("Sketcher::SketchObject", "Sketch001")
body.addObject(sketch2)
sketch2.AttachmentSupport = (doc.XY_Plane, [""])
sketch2.MapMode = "FlatFace"
sketch2.AttachmentOffset = App.Placement(App.Vector(0, 0, 2), App.Rotation())
sketch2.addGeometry(Part.Circle(App.Vector(-9.5, 6.1, 0), App.Vector(0, 0, 1), 1.2), False)
sketch2.addGeometry(Part.Circle(App.Vector(9.5, 6.1, 0), App.Vector(0, 0, 1), 1.2), False)
sketch2.addGeometry(Part.Circle(App.Vector(0, -10.4, 0), App.Vector(0, 0, 1), 1.2), False)
sketch2.addConstraint(Sketcher.Constraint("Equal", 0, 1))
sketch2.addConstraint(Sketcher.Constraint("Equal", 1, 2))
sketch2.addConstraint(Sketcher.Constraint("Symmetric", 0, 3, 1, 3, -2))
sketch2.addConstraint(Sketcher.Constraint("PointOnObject", 2, 3, -2))
sketch2.addConstraint(Sketcher.Constraint("Diameter", 0, Q("2.5 mm")))
sketch2.addConstraint(Sketcher.Constraint("DistanceY", 2, 3, 0, 3, Q("16.5 mm")))
sketch2.addConstraint(Sketcher.Constraint("DistanceX", 0, 3, -1, 1, Q("9.526279 mm")))
sketch2.addConstraint(Sketcher.Constraint("DistanceY", -1, 1, 0, 3, Q("6.120023 mm")))
doc.recompute()
hole = doc.addObject("PartDesign::Hole", "Hole")
body.addObject(hole)
hole.Profile = sketch2
hole.ThreadType = "None"
hole.Diameter = 2.5
hole.DepthType = "Dimension"
hole.Depth = 9.5
hole.DrillPoint = "Angled"
hole.DrillPointAngle = 118
hole.HoleCutType = "Countersink"
hole.HoleCutDiameter = 4
hole.HoleCutCountersinkAngle = 90

doc.recompute()
